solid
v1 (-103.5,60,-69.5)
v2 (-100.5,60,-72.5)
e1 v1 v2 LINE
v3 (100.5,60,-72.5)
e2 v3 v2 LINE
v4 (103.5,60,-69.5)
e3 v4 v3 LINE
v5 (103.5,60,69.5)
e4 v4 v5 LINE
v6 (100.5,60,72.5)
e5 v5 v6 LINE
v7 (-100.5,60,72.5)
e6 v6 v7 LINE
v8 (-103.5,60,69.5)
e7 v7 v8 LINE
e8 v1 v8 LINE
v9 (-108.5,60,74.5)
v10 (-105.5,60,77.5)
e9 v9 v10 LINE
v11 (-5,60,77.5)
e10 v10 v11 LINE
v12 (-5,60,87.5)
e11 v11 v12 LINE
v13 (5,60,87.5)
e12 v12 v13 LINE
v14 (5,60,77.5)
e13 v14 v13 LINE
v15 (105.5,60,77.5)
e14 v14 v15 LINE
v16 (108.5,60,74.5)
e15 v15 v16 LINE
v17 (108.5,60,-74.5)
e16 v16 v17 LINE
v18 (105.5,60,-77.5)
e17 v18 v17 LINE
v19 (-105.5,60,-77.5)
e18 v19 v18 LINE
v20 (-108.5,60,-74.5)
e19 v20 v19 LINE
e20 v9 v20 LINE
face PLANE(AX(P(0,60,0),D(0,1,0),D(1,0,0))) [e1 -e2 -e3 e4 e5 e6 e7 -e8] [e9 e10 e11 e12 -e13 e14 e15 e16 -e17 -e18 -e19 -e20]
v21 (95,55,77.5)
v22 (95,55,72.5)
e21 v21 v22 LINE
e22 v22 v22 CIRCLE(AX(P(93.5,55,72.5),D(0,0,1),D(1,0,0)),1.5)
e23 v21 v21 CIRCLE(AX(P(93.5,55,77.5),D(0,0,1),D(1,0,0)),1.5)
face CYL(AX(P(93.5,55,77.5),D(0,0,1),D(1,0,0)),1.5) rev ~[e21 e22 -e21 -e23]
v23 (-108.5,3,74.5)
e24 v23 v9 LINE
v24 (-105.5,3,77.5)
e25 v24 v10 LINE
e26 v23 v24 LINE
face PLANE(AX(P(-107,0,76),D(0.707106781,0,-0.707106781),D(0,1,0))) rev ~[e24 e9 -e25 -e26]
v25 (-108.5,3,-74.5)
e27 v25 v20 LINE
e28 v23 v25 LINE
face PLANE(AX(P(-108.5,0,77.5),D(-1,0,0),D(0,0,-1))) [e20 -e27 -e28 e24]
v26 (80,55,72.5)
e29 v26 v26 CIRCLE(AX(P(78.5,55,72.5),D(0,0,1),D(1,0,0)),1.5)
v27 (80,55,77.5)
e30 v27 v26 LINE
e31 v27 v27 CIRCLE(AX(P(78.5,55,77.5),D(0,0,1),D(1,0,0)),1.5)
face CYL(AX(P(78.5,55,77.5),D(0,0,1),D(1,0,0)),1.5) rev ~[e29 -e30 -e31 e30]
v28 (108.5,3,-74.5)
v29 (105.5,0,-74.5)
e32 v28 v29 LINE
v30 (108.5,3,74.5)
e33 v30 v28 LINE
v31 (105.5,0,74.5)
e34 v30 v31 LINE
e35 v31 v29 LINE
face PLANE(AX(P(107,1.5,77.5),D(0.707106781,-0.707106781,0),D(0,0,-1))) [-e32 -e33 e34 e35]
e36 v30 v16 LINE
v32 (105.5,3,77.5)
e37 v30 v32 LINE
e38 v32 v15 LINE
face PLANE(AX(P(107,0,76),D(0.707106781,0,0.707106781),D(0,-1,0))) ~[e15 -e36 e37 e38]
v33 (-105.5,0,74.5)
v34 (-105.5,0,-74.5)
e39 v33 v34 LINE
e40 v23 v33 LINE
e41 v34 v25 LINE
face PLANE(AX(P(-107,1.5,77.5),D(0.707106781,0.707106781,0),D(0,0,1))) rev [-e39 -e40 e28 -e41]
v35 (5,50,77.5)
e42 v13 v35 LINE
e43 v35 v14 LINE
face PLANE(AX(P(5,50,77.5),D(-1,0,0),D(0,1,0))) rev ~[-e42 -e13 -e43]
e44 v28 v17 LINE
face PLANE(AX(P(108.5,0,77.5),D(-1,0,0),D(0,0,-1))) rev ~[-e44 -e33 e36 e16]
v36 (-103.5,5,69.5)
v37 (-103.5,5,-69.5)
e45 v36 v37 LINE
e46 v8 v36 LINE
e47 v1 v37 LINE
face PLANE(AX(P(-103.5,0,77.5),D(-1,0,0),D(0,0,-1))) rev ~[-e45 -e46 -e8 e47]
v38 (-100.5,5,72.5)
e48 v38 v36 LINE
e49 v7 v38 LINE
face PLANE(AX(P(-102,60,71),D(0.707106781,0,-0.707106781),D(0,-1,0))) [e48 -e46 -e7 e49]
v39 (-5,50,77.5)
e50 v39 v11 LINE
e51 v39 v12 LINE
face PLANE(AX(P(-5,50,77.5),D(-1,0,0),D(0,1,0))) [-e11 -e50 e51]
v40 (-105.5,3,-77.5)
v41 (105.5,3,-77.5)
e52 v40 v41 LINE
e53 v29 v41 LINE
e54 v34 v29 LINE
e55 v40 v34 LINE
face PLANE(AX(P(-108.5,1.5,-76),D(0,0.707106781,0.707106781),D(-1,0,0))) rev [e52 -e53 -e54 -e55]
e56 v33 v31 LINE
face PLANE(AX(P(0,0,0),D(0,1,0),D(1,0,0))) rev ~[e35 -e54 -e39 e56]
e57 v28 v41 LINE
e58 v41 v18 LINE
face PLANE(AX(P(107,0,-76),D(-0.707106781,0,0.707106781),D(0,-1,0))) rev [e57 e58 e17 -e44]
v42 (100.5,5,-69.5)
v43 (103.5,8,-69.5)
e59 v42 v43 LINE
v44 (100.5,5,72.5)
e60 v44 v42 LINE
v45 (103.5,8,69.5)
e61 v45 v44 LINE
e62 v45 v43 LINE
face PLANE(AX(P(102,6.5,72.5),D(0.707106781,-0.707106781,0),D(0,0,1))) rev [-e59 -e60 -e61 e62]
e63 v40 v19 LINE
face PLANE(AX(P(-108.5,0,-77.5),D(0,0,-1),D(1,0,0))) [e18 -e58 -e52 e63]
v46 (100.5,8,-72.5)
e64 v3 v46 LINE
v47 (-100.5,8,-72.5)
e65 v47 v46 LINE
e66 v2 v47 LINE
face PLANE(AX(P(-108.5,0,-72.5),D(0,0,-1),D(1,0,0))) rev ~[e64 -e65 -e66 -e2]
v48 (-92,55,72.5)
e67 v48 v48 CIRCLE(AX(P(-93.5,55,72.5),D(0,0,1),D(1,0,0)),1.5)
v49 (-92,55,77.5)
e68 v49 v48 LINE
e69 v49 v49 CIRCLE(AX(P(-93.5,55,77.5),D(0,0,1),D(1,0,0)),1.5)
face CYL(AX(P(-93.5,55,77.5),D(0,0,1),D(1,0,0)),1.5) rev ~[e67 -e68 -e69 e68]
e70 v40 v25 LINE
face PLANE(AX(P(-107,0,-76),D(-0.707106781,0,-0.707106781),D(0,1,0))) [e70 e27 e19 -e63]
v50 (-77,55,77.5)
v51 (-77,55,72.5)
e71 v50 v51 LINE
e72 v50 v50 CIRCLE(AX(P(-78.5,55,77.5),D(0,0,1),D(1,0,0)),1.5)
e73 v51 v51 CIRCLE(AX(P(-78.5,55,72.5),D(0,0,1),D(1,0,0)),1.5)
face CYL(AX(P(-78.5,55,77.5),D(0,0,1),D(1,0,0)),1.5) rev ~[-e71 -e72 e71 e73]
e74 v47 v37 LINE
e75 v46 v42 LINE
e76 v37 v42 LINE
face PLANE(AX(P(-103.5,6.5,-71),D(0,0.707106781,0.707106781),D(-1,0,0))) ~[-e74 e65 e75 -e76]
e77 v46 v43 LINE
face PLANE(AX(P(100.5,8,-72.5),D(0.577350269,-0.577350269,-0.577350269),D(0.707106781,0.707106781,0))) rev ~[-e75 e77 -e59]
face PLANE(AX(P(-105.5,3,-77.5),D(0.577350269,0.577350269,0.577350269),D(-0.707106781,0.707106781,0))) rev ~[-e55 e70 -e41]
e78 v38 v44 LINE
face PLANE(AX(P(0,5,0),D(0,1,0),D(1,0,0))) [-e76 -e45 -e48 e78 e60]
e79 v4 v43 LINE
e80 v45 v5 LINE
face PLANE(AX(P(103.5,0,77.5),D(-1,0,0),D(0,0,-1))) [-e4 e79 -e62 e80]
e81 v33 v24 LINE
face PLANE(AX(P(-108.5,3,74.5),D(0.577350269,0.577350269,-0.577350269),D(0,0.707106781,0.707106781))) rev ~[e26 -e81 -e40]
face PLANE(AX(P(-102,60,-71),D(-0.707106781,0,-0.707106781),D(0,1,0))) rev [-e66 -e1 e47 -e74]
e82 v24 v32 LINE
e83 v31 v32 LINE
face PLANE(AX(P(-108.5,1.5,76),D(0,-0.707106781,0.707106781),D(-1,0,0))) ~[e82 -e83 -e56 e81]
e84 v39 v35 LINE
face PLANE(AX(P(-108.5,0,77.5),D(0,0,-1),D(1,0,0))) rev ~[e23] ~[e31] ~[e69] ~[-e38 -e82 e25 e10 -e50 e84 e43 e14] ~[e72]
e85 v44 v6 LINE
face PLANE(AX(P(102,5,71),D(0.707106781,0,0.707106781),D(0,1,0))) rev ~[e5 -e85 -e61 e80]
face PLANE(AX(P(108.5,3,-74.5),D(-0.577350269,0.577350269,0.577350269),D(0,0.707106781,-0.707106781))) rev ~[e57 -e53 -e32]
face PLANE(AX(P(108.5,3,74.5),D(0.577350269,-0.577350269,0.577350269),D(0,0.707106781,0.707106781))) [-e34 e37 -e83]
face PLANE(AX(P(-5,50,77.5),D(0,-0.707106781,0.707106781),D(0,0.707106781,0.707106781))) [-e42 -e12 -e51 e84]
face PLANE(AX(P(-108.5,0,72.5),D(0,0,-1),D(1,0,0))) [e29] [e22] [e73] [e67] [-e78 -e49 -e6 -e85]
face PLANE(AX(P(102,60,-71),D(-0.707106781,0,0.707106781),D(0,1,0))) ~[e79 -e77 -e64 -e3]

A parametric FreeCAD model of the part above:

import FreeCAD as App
import Part
import Sketcher


def edges_at(feature, points):
    """Names of the edges that pass closest to the given points."""
    edges = feature.Shape.Edges
    near = lambda p: min(range(len(edges)), key=lambda i: edges[i].distToShape(Part.Vertex(*p))[0])
    return sorted({f"Edge{near(p) + 1}" for p in points})


def faces_at(feature, points):
    """Names of the faces that lie closest to the given points."""
    faces = feature.Shape.Faces
    near = lambda p: min(range(len(faces)), key=lambda i: faces[i].distToShape(Part.Vertex(*p))[0])
    return sorted({f"Face{near(p) + 1}" for p in points})

doc = App.newDocument("Part")
body = doc.addObject("PartDesign::Body", "Body")

sketch1 = doc.addObject("Sketcher::SketchObject", "Sketch")
body.addObject(sketch1)
sketch1.AttachmentSupport = (doc.XZ_Plane, [""])
sketch1.MapMode = "FlatFace"
sketch1.addGeometry([
    Part.LineSegment(App.Vector(-108.5, -77.5, 0), App.Vector(-108.5, 77.5, 0)),
    Part.LineSegment(App.Vector(-108.5, 77.5, 0), App.Vector(108.5, 77.5, 0)),
    Part.LineSegment(App.Vector(108.5, 77.5, 0), App.Vector(108.5, -77.5, 0)),
    Part.LineSegment(App.Vector(108.5, -77.5, 0), App.Vector(-108.5, -77.5, 0)),
], False)
sketch1.addConstraint([
    Sketcher.Constraint("Coincident", 0, 2, 1, 1),
    Sketcher.Constraint("Coincident", 1, 2, 2, 1),
    Sketcher.Constraint("Coincident", 2, 2, 3, 1),
    Sketcher.Constraint("Coincident", 3, 2, 0, 1),
    Sketcher.Constraint("Vertical", 0),
    Sketcher.Constraint("Horizontal", 1),
    Sketcher.Constraint("Vertical", 2),
    Sketcher.Constraint("Horizontal", 3),
    Sketcher.Constraint("Symmetric", 0, 2, 2, 2, -1, 1),
    Sketcher.Constraint("DistanceX", 1, 1, 1, 2, 217.0),
    Sketcher.Constraint("DistanceY", 0, 1, 0, 2, 155.0),
])
pad1 = doc.addObject("PartDesign::Pad", "Pad")
body.addObject(pad1)
pad1.Profile = sketch1
pad1.Length = 60
pad1.Reversed = True
doc.recompute()

thickness = doc.addObject("PartDesign::Thickness", "Thickness")
body.addObject(thickness)
thickness.Base = (pad1, faces_at(pad1, [(0, 60, 0)]))
thickness.Value = 5
thickness.Reversed = True
thickness.Join = "Intersection"

sketch2 = doc.addObject("Sketcher::SketchObject", "Sketch001")
body.addObject(sketch2)
sketch2.AttachmentSupport = (doc.XY_Plane, [""])
sketch2.MapMode = "FlatFace"
sketch2.AttachmentOffset = App.Placement(App.Vector(0, 0, 77.5), App.Rotation())
sketch2.addGeometry(Part.Circle(App.Vector(-93.5, 55, 0), App.Vector(0, 0, 1), 1.5), False)
sketch2.addConstraint([
    Sketcher.Constraint("Diameter", 0, 3.0),
    Sketcher.Constraint("DistanceY", -1, 1, 0, 3, 55.0),
    Sketcher.Constraint("DistanceX", 0, 3, -1, 1, 93.5),
])
pocket1 = doc.addObject("PartDesign::Pocket", "Pocket")
body.addObject(pocket1)
pocket1.Profile = sketch2
pocket1.Type = "UpToFirst"

sketch3 = doc.addObject("Sketcher::SketchObject", "Sketch002")
body.addObject(sketch3)
sketch3.AttachmentSupport = (doc.XY_Plane, [""])
sketch3.MapMode = "FlatFace"
sketch3.AttachmentOffset = App.Placement(App.Vector(0, 0, 77.5), App.Rotation())
sketch3.addGeometry(Part.Circle(App.Vector(-78.5, 55, 0), App.Vector(0, 0, 1), 1.5), False)
sketch3.addConstraint([
    Sketcher.Constraint("Diameter", 0, 3.0),
    Sketcher.Constraint("DistanceY", -1, 1, 0, 3, 55.0),
    Sketcher.Constraint("DistanceX", 0, 3, -1, 1, 78.5),
])
pocket2 = doc.addObject("PartDesign::Pocket", "Pocket001")
body.addObject(pocket2)
pocket2.Profile = sketch3
pocket2.Type = "UpToFirst"

sketch4 = doc.addObject("Sketcher::SketchObject", "Sketch003")
body.addObject(sketch4)
sketch4.AttachmentSupport = (doc.XY_Plane, [""])
sketch4.MapMode = "FlatFace"
sketch4.AttachmentOffset = App.Placement(App.Vector(0, 0, 77.5), App.Rotation())
sketch4.addGeometry(Part.Circle(App.Vector(78.5, 55, 0), App.Vector(0, 0, 1), 1.5), False)
sketch4.addConstraint([
    Sketcher.Constraint("Diameter", 0, 3.0),
    Sketcher.Constraint("DistanceY", -1, 1, 0, 3, 55.0),
    Sketcher.Constraint("DistanceX", -1, 1, 0, 3, 78.5),
])
pocket3 = doc.addObject("PartDesign::Pocket", "Pocket002")
body.addObject(pocket3)
pocket3.Profile = sketch4
pocket3.Type = "UpToFirst"

sketch5 = doc.addObject("Sketcher::SketchObject", "Sketch004")
body.addObject(sketch5)
sketch5.AttachmentSupport = (doc.XY_Plane, [""])
sketch5.MapMode = "FlatFace"
sketch5.AttachmentOffset = App.Placement(App.Vector(0, 0, 77.5), App.Rotation())
sketch5.addGeometry(Part.Circle(App.Vector(93.5, 55, 0), App.Vector(0, 0, 1), 1.5), False)
sketch5.addConstraint([
    Sketcher.Constraint("Diameter", 0, 3.0),
    Sketcher.Constraint("DistanceY", -1, 1, 0, 3, 55.0),
    Sketcher.Constraint("DistanceX", -1, 1, 0, 3, 93.5),
])
pocket4 = doc.addObject("PartDesign::Pocket", "Pocket003")
body.addObject(pocket4)
pocket4.Profile = sketch5
pocket4.Type = "UpToFirst"

sketch6 = doc.addObject("Sketcher::SketchObject", "Sketch005")
body.addObject(sketch6)
sketch6.AttachmentSupport = (doc.XY_Plane, [""])
sketch6.MapMode = "FlatFace"
sketch6.AttachmentOffset = App.Placement(App.Vector(0, 0, 77.5), App.Rotation())
sketch6.addGeometry([
    Part.LineSegment(App.Vector(-5, 60, 0), App.Vector(-5, 50, 0)),
    Part.LineSegment(App.Vector(-5, 50, 0), App.Vector(5, 50, 0)),
    Part.LineSegment(App.Vector(5, 50, 0), App.Vector(5, 60, 0)),
    Part.LineSegment(App.Vector(5, 60, 0), App.Vector(-5, 60, 0)),
], False)
sketch6.addConstraint([
    Sketcher.Constraint("Coincident", 0, 2, 1, 1),
    Sketcher.Constraint("Coincident", 1, 2, 2, 1),
    Sketcher.Constraint("Coincident", 2, 2, 3, 1),
    Sketcher.Constraint("Coincident", 3, 2, 0, 1),
    Sketcher.Constraint("Vertical", 0),
    Sketcher.Constraint("Horizontal", 1),
    Sketcher.Constraint("Vertical", 2),
    Sketcher.Constraint("Horizontal", 3),
    Sketcher.Constraint("Equal", 3, 0),
    Sketcher.Constraint("DistanceX", 1, 1, 1, 2, 10.0),
    Sketcher.Constraint("DistanceX", 0, 2, -1, 1, 5.0),
    Sketcher.Constraint("DistanceY", -1, 1, 0, 2, 50.0),
])
pad2 = doc.addObject("PartDesign::Pad", "Pad001")
body.addObject(pad2)
pad2.Profile = sketch6
pad2.Length = 10

sketch7 = doc.addObject("Sketcher::SketchObject", "Sketch006")
body.addObject(sketch7)
sketch7.AttachmentSupport = (doc.YZ_Plane, [""])
sketch7.MapMode = "FlatFace"
sketch7.AttachmentOffset = App.Placement(App.Vector(0, 0, -5), App.Rotation())
sketch7.addGeometry([
    Part.LineSegment(App.Vector(60, 87.5, 0), App.Vector(50, 77.5, 0)),
    Part.LineSegment(App.Vector(50, 77.5, 0), App.Vector(50, 87.5, 0)),
    Part.LineSegment(App.Vector(50, 87.5, 0), App.Vector(60, 87.5, 0)),
], False)
sketch7.addConstraint([
    Sketcher.Constraint("Coincident", 0, 2, 1, 1),
    Sketcher.Constraint("Coincident", 1, 2, 2, 1),
    Sketcher.Constraint("Coincident", 2, 2, 0, 1),
    Sketcher.Constraint("Vertical", 1),
    Sketcher.Constraint("Horizontal", 2),
    Sketcher.Constraint("Equal", 2, 1),
    Sketcher.Constraint("DistanceX", 2, 1, 2, 2, 10.0),
    Sketcher.Constraint("DistanceX", -1, 1, 0, 2, 50.0),
    Sketcher.Constraint("DistanceY", -1, 1, 0, 2, 77.5),
])
pocket5 = doc.addObject("PartDesign::Pocket", "Pocket004")
body.addObject(pocket5)
pocket5.Profile = sketch7
pocket5.Type = "UpToFirst"
pocket5.Reversed = True
doc.recompute()

chamfer = doc.addObject("PartDesign::Chamfer", "Chamfer")
body.addObject(chamfer)
chamfer.Base = (pocket5, edges_at(pocket5, [
    (103.5, 5, 0),
    (103.5, 32.5, 72.5),
    (0, 5, -72.5),
    (103.5, 32.5, -72.5),
    (-103.5, 32.5, -72.5),
    (-103.5, 32.5, 72.5),
    (0, 0, 77.5),
    (-108.5, 0, 0),
    (0, 0, -77.5),
    (108.5, 0, 0),
    (108.5, 30, 77.5),
    (-108.5, 30, 77.5),
    (-108.5, 30, -77.5),
    (108.5, 30, -77.5),
]))
chamfer.Size = 3

doc.recompute()
